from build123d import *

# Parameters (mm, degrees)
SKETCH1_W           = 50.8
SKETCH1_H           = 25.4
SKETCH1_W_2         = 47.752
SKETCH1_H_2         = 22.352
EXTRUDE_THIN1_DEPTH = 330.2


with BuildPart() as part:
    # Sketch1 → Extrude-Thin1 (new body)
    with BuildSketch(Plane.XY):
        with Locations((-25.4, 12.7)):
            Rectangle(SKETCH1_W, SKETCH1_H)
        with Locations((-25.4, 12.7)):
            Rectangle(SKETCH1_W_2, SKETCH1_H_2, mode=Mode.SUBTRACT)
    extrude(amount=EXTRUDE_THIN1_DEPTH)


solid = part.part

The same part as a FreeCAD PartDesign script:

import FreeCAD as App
import Part
import Sketcher
from FreeCAD import Vector
Q = App.Units.Quantity

doc = App.newDocument("Part")
body = doc.addObject("PartDesign::Body", "Body")

sketch1 = doc.addObject("Sketcher::SketchObject", "Sketch")
body.addObject(sketch1)
sketch1.AttachmentSupport = (doc.XY_Plane, [""])
sketch1.MapMode = "FlatFace"
sketch1.addGeometry([
    Part.LineSegment(Vector(-51, 25, 0), Vector(-51, 0, 0)),
    Part.LineSegment(Vector(-51, 0, 0), Vector(0, 0, 0)),
    Part.LineSegment(Vector(0, 0, 0), Vector(0, 25, 0)),
    Part.LineSegment(Vector(0, 25, 0), Vector(-51, 25, 0)),
    Part.LineSegment(Vector(-2, 2, 0), Vector(-49, 2, 0)),
    Part.LineSegment(Vector(-49, 2, 0), Vector(-49, 24, 0)),
    Part.LineSegment(Vector(-49, 24, 0), Vector(-2, 24, 0)),
    Part.LineSegment(Vector(-2, 24, 0), Vector(-2, 2, 0)),
], False)
sketch1.addConstraint([
    Sketcher.Constraint("Coincident", 0, 2, 1, 1),
    Sketcher.Constraint("Coincident", 1, 2, 2, 1),
    Sketcher.Constraint("Coincident", 2, 2, 3, 1),
    Sketcher.Constraint("Coincident", 3, 2, 0, 1),
    Sketcher.Constraint("Coincident", 4, 2, 5, 1),
    Sketcher.Constraint("Coincident", 5, 2, 6, 1),
    Sketcher.Constraint("Coincident", 6, 2, 7, 1),
    Sketcher.Constraint("Coincident", 7, 2, 4, 1),
    Sketcher.Constraint("Vertical", 0),
    Sketcher.Constraint("Horizontal", 1),
    Sketcher.Constraint("Vertical", 2),
    Sketcher.Constraint("Horizontal", 3),
    Sketcher.Constraint("Horizontal", 4),
    Sketcher.Constraint("Vertical", 5),
    Sketcher.Constraint("Horizontal", 6),
    Sketcher.Constraint("Vertical", 7),
    Sketcher.Constraint("Coincident", 1, 2, -1, 1),
    Sketcher.Constraint("DistanceX", 1, 1, 1, 2, Q("2 in")),
    Sketcher.Constraint("DistanceY", 0, 2, 0, 1, Q("1 in")),
    Sketcher.Constraint("DistanceX", 4, 2, 4, 1, Q("1.88 in")),
    Sketcher.Constraint("DistanceY", 5, 1, 5, 2, Q("0.88 in")),
    Sketcher.Constraint("DistanceX", 4, 2, -1, 1, Q("1.94 in")),
    Sketcher.Constraint("DistanceY", -1, 1, 4, 2, Q("0.06 in")),
])
pad1 = doc.addObject("PartDesign::Pad", "Pad")
body.addObject(pad1)
pad1.Profile = sketch1
pad1.Length = Q("13 in")

doc.recompute()
